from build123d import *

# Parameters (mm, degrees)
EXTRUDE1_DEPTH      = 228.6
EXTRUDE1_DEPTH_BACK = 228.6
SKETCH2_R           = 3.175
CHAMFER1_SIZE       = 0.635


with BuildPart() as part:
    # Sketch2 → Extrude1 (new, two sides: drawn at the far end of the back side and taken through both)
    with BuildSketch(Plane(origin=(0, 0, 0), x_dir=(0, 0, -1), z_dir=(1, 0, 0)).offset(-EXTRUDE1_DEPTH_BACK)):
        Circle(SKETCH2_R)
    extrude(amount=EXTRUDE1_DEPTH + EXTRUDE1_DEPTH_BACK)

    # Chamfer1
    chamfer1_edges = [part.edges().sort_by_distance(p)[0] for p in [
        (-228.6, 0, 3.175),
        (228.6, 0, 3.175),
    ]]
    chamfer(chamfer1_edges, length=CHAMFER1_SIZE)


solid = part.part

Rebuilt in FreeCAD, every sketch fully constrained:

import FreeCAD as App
import Part
import Sketcher
from FreeCAD import Vector
Q = App.Units.Quantity


def edges_at(feature, points):
    """Names of the edges that pass closest to the given points."""
    edges = feature.Shape.Edges
    near = lambda p: min(range(len(edges)), key=lambda i: edges[i].distToShape(Part.Vertex(*p))[0])
    return sorted({f"Edge{near(p) + 1}" for p in points})

doc = App.newDocument("Part")
body = doc.addObject("PartDesign::Body", "Body")

sketch1 = body.newObject("Sketcher::SketchObject", "Sketch")
sketch1.AttachmentSupport = (doc.getObject("YZ_Plane"), [""])
sketch1.MapMode = "FlatFace"
sketch1.addGeometry(Part.Circle(Vector(0, 0, 0), Vector(0, 0, 1), 3.175), False)
sketch1.addConstraint([
    Sketcher.Constraint("Coincident", 0, 3, -1, 1),
    Sketcher.Constraint("Diameter", 0, Q("0.25 in")),
])
pad1 = body.newObject("PartDesign::Pad", "Pad")
pad1.Profile = sketch1
pad1.Type = "TwoLengths"
pad1.Length = Q("9 in")
pad1.Length2 = Q("9 in")
doc.recompute()

chamfer = body.newObject("PartDesign::Chamfer", "Chamfer")
chamfer.Base = (pad1, edges_at(pad1, [(-228.6, 0, 3.175), (228.6, 0, 3.175)]))
chamfer.Size = Q("0.025 in")

doc.recompute()
